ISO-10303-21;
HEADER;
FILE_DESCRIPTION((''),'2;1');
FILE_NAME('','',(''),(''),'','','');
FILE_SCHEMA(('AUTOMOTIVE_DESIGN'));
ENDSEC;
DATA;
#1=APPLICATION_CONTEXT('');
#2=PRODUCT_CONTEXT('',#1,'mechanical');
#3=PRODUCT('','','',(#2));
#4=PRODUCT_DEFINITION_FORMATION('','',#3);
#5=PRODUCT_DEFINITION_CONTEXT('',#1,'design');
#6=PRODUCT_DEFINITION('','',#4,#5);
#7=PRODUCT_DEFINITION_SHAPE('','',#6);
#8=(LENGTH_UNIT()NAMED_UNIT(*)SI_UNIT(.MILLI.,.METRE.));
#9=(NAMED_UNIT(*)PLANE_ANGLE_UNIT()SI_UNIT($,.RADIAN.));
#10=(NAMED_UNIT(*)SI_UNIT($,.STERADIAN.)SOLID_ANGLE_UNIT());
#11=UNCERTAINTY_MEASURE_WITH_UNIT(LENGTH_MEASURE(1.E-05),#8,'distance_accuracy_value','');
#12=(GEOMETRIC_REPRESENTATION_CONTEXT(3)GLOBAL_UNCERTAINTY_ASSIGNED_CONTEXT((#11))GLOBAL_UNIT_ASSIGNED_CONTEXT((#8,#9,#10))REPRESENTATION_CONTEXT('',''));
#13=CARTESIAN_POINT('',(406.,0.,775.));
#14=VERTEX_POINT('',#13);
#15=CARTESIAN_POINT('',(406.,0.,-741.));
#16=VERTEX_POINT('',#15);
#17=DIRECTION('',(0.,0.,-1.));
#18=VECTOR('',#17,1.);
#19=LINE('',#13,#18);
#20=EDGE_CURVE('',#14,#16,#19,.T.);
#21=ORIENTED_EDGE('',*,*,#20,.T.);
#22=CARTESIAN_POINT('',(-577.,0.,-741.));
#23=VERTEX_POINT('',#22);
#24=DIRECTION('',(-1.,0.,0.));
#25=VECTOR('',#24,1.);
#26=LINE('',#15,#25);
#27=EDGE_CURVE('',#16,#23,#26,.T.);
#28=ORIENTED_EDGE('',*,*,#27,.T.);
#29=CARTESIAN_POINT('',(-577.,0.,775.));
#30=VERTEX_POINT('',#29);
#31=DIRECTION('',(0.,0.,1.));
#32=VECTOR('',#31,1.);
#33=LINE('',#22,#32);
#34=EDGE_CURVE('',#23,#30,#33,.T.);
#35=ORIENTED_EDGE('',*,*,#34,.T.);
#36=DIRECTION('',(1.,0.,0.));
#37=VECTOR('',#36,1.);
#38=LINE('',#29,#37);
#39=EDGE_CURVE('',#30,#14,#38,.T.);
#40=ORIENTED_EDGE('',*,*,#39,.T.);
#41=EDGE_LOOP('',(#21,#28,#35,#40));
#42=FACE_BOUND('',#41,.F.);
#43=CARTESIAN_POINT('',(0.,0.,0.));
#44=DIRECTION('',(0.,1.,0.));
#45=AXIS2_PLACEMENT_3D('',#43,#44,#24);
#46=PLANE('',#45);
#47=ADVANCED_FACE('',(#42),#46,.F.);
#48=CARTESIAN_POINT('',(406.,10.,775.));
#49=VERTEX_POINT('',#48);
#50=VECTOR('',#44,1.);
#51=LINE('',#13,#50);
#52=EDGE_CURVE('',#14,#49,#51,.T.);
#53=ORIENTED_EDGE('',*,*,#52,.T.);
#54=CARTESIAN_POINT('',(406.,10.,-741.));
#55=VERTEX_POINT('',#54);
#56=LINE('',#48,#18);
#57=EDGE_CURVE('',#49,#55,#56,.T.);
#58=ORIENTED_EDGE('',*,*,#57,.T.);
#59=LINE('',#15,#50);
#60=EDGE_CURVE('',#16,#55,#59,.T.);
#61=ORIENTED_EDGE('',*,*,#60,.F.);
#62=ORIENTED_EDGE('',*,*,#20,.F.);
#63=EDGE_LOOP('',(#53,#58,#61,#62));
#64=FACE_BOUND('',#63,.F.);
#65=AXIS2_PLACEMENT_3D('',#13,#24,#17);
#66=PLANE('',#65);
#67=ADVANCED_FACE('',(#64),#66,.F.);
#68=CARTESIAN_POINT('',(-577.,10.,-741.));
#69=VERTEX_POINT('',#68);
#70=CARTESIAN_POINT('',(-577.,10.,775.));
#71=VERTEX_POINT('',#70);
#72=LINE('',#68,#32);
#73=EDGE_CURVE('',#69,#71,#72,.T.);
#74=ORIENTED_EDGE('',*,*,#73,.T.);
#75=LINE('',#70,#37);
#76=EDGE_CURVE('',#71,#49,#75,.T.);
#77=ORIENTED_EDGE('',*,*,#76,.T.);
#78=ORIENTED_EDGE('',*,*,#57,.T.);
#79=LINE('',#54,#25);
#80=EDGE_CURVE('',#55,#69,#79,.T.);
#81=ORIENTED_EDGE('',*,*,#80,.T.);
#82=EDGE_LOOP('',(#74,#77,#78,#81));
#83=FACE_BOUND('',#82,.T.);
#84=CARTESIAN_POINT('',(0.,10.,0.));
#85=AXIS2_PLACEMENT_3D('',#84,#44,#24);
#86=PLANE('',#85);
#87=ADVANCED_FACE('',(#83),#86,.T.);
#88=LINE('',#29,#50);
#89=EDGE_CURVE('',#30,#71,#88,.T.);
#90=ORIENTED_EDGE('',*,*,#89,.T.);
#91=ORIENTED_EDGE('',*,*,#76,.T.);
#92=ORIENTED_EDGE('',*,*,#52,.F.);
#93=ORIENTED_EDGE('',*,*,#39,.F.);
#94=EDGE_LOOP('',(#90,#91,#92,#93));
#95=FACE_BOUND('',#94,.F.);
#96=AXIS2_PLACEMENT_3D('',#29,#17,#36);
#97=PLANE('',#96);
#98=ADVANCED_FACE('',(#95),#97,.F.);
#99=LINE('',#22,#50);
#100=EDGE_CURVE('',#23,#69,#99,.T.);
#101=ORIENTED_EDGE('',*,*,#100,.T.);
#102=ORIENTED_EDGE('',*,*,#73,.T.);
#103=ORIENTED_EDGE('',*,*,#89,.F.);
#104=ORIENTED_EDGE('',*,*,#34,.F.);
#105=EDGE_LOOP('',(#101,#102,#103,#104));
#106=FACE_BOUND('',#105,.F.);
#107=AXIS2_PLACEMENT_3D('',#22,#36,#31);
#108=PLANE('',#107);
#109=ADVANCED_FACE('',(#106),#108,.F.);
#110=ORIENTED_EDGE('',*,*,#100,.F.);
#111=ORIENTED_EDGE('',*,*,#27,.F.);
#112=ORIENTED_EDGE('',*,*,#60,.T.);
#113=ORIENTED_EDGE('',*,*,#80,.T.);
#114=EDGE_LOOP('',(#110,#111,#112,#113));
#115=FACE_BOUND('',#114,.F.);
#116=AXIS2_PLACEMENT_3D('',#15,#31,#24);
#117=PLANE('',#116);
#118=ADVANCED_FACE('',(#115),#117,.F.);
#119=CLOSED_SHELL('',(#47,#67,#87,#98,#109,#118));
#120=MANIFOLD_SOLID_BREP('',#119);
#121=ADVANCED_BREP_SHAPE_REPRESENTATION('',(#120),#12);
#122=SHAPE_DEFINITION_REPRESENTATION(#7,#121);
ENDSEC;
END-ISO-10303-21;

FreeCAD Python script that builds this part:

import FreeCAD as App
import Part
import Sketcher
from FreeCAD import Vector

doc = App.newDocument("Part")
body = doc.addObject("PartDesign::Body", "Body")

sketch1 = body.newObject("Sketcher::SketchObject", "Sketch")
sketch1.AttachmentSupport = (doc.getObject("XZ_Plane"), [""])
sketch1.MapMode = "FlatFace"
sketch1.addGeometry(Part.LineSegment(Vector(-577, -741, 0), Vector(-577, 775, 0)), False)
sketch1.addGeometry(Part.LineSegment(Vector(-577, 775, 0), Vector(406, 775, 0)), False)
sketch1.addGeometry(Part.LineSegment(Vector(406, 775, 0), Vector(406, -741, 0)), False)
sketch1.addGeometry(Part.LineSegment(Vector(406, -741, 0), Vector(-577, -741, 0)), False)
sketch1.addConstraint(Sketcher.Constraint("Coincident", 0, 2, 1, 1))
sketch1.addConstraint(Sketcher.Constraint("Coincident", 1, 2, 2, 1))
sketch1.addConstraint(Sketcher.Constraint("Coincident", 2, 2, 3, 1))
sketch1.addConstraint(Sketcher.Constraint("Coincident", 3, 2, 0, 1))
sketch1.addConstraint(Sketcher.Constraint("Vertical", 0))
sketch1.addConstraint(Sketcher.Constraint("Horizontal", 1))
sketch1.addConstraint(Sketcher.Constraint("Vertical", 2))
sketch1.addConstraint(Sketcher.Constraint("Horizontal", 3))
sketch1.addConstraint(Sketcher.Constraint("DistanceX", 1, 1, 1, 2, 983.0))
sketch1.addConstraint(Sketcher.Constraint("DistanceY", 0, 1, 0, 2, 1516.0))
sketch1.addConstraint(Sketcher.Constraint("DistanceX", 0, 2, -1, 1, 577.0))
sketch1.addConstraint(Sketcher.Constraint("DistanceY", -1, 1, 0, 2, 775.0))
pad1 = body.newObject("PartDesign::Pad", "Pad")
pad1.Profile = sketch1
pad1.Length = 10
pad1.Reversed = True

doc.recompute()
